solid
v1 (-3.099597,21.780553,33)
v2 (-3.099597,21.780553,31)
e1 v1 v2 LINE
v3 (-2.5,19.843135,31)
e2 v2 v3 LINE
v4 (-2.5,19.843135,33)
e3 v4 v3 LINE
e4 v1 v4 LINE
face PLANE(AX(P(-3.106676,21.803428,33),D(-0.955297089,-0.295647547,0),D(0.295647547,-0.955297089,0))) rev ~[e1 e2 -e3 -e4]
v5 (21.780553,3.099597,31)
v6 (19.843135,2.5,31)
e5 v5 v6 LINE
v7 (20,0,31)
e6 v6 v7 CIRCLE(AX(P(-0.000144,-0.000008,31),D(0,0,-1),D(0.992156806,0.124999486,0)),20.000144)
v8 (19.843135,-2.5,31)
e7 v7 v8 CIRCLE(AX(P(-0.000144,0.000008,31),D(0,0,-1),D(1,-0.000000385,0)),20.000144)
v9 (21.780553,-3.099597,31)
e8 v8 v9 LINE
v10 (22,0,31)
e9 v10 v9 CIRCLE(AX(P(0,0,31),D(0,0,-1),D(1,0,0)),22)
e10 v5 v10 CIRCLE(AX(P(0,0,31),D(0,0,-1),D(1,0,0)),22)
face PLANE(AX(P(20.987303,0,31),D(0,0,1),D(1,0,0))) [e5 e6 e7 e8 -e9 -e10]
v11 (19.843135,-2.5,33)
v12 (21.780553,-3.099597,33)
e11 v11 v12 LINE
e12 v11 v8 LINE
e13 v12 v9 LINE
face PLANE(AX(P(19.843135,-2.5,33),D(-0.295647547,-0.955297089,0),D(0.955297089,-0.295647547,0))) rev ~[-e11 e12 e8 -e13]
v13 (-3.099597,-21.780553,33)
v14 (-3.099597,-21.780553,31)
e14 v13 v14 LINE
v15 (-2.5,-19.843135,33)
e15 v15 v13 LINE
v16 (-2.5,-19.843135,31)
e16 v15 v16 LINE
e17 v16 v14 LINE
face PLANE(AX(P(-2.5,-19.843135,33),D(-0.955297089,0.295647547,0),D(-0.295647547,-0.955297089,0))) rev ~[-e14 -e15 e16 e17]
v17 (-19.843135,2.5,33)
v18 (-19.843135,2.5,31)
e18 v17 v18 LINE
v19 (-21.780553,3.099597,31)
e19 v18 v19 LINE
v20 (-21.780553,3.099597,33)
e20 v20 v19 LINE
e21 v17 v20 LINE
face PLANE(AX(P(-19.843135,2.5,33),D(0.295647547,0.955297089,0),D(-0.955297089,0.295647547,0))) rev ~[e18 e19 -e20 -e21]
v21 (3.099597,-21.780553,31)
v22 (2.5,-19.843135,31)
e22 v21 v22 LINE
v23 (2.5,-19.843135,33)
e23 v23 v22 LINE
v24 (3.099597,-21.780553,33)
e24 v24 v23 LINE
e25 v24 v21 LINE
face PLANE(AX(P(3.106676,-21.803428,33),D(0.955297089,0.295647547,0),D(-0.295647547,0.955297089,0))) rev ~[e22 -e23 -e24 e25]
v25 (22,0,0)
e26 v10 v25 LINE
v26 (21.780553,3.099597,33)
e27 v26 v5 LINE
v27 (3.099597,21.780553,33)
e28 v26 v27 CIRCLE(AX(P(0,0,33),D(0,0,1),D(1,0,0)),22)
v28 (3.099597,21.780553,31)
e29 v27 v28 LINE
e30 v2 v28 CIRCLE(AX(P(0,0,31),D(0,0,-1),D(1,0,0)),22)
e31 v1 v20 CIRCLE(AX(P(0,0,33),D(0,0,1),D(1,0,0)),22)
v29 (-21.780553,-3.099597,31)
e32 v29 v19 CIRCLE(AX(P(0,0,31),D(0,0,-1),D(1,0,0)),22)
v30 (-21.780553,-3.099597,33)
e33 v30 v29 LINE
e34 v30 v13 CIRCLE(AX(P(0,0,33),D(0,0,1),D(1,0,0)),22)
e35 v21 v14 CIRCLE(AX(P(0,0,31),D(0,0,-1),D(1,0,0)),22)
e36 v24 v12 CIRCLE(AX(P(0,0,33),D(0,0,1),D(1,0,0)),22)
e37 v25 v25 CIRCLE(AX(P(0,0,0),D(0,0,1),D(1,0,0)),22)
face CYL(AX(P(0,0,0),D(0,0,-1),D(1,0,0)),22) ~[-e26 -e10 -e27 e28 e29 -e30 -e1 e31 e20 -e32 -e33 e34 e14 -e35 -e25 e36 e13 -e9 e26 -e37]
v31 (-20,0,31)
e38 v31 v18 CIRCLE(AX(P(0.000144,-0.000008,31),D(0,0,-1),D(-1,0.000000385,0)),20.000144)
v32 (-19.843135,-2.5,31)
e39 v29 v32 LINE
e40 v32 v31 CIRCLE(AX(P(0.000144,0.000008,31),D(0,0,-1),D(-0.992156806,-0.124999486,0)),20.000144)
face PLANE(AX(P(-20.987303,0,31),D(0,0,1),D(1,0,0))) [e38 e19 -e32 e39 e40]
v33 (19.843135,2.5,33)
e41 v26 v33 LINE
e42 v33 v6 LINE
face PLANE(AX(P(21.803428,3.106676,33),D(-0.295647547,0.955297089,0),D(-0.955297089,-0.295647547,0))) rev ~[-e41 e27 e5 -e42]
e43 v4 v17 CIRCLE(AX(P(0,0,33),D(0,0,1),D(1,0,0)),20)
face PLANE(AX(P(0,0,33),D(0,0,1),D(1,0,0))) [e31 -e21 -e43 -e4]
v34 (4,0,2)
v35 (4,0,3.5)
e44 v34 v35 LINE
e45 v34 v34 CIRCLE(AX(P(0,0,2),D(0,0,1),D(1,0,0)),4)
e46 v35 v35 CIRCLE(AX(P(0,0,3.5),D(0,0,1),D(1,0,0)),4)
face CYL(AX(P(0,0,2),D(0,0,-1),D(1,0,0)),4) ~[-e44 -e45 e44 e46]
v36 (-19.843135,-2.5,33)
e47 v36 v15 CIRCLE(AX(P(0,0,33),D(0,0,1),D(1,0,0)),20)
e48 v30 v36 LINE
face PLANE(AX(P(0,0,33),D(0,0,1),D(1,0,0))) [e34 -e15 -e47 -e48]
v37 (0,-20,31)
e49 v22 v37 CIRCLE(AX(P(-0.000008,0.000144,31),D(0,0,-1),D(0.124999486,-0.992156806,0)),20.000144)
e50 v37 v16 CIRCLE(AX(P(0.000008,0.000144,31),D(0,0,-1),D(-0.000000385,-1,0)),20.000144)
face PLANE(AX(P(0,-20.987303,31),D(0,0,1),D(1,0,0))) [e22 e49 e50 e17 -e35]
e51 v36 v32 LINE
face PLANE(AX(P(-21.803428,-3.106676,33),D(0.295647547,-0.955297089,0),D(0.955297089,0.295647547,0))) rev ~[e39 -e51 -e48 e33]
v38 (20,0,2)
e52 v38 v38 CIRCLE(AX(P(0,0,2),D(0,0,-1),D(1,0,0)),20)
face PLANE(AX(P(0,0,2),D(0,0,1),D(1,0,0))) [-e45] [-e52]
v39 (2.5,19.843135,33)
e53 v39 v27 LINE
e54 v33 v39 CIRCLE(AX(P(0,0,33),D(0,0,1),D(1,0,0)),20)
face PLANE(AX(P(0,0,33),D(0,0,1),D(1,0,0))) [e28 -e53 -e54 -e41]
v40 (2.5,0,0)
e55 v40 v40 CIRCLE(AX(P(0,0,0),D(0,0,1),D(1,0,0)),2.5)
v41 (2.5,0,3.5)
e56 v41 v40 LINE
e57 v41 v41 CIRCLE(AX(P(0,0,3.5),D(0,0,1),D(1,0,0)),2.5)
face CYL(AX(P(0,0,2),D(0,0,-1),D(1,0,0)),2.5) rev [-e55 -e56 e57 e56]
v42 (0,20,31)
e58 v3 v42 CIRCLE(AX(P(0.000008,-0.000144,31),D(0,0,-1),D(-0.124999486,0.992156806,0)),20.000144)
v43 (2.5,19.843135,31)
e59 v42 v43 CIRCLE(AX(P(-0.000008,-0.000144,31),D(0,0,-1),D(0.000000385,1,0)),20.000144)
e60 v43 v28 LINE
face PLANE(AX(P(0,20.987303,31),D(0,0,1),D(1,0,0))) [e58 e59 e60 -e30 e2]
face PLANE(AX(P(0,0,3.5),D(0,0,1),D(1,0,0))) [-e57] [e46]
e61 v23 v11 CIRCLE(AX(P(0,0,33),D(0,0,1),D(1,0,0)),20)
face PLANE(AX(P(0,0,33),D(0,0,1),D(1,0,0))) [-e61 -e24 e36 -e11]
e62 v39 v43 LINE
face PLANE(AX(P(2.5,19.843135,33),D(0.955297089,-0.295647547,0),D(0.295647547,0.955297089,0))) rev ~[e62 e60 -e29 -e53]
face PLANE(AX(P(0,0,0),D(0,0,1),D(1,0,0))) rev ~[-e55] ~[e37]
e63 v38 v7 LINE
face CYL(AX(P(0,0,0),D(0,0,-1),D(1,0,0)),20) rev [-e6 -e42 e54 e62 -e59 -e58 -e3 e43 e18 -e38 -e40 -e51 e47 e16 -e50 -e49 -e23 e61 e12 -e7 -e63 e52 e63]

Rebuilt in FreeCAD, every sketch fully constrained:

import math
import FreeCAD as App
import Part
import Sketcher

doc = App.newDocument("Part")
body = doc.addObject("PartDesign::Body", "Body")

# Sketch on XY plane
sketch1 = body.newObject("Sketcher::SketchObject", "Sketch")
sketch1.AttachmentSupport = (doc.getObject("XY_Plane"), [""])
sketch1.MapMode = "FlatFace"
sketch1.addGeometry([
    Part.Circle(App.Vector(0, 0, 0), App.Vector(0, 0, 1), 22),
    Part.Circle(App.Vector(0, 0, 0), App.Vector(0, 0, 1), 20),
], False)
sketch1.addConstraint([
    Sketcher.Constraint("Coincident", 0, 3, -1, 1),
    Sketcher.Constraint("Coincident", 1, 3, -1, 1),
    Sketcher.Constraint("Diameter", 0, 44.0),
    Sketcher.Constraint("Diameter", 1, 40.0),
])
pad1 = body.newObject("PartDesign::Pad", "Pad")
pad1.Profile = sketch1
pad1.Length = 33

# Sketch on XY plane
sketch2 = body.newObject("Sketcher::SketchObject", "Sketch001")
sketch2.AttachmentSupport = (doc.getObject("XY_Plane"), [""])
sketch2.MapMode = "FlatFace"
sketch2.addGeometry([
    Part.Circle(App.Vector(0, 0, 0), App.Vector(0, 0, 1), 22),
    Part.Circle(App.Vector(0, 0, 0), App.Vector(0, 0, 1), 2.5),
], False)
sketch2.addConstraint([
    Sketcher.Constraint("Coincident", 0, 3, -1, 1),
    Sketcher.Constraint("Coincident", 1, 3, -1, 1),
    Sketcher.Constraint("Diameter", 0, 44.0),
    Sketcher.Constraint("Diameter", 1, 5.0),
])
pad2 = body.newObject("PartDesign::Pad", "Pad001")
pad2.Profile = sketch2
pad2.Length = 2

# Sketch on XY plane
sketch3 = body.newObject("Sketcher::SketchObject", "Sketch002")
sketch3.AttachmentSupport = (doc.getObject("XY_Plane"), [""])
sketch3.MapMode = "FlatFace"
sketch3.AttachmentOffset = App.Placement(App.Vector(0, 0, 33), App.Rotation())
sketch3.addGeometry([
    Part.LineSegment(App.Vector(-3.106676, 21.803428, 0), App.Vector(-2.5, 19.843135, 0)),  # 0
    Part.ArcOfCircle(Part.Circle(App.Vector(0.000008, -0.000144, 0), App.Vector(0, 0, 1), 20.000144), math.radians(90.000022), math.radians(97.180726)),  # 1
    Part.ArcOfCircle(Part.Circle(App.Vector(-0.000008, -0.000144, 0), App.Vector(0, 0, 1), 20.000144), math.radians(82.819274), math.radians(89.999978)),  # 2
    Part.LineSegment(App.Vector(2.5, 19.843135, 0), App.Vector(3.106676, 21.803428, 0)),  # 3
    Part.ArcOfCircle(Part.Circle(App.Vector(0, 0.00007, 0), App.Vector(0, 0, 1), 22.023575), math.radians(81.890731), math.radians(98.109269)),  # 4
    Part.LineSegment(App.Vector(-21.803428, -3.106676, 0), App.Vector(-19.843135, -2.5, 0)),  # 5
    Part.ArcOfCircle(Part.Circle(App.Vector(0.000144, 0.000008, 0), App.Vector(0, 0, 1), 20.000144), math.radians(-179.999978), math.radians(-172.819274)),  # 6
    Part.ArcOfCircle(Part.Circle(App.Vector(0.000144, -0.000008, 0), App.Vector(0, 0, 1), 20.000144), math.radians(172.819274), math.radians(179.999978)),  # 7
    Part.LineSegment(App.Vector(-19.843135, 2.5, 0), App.Vector(-21.803428, 3.106676, 0)),  # 8
    Part.ArcOfCircle(Part.Circle(App.Vector(-0.00007, 0, 0), App.Vector(0, 0, 1), 22.023575), math.radians(171.890731), math.radians(188.109269)),  # 9
    Part.LineSegment(App.Vector(3.106676, -21.803428, 0), App.Vector(2.5, -19.843135, 0)),  # 10
    Part.ArcOfCircle(Part.Circle(App.Vector(-0.000008, 0.000144, 0), App.Vector(0, 0, 1), 20.000144), math.radians(-89.999978), math.radians(-82.819274)),  # 11
    Part.ArcOfCircle(Part.Circle(App.Vector(0.000008, 0.000144, 0), App.Vector(0, 0, 1), 20.000144), math.radians(-97.180726), math.radians(-90.000022)),  # 12
    Part.LineSegment(App.Vector(-2.5, -19.843135, 0), App.Vector(-3.106676, -21.803428, 0)),  # 13
    Part.ArcOfCircle(Part.Circle(App.Vector(0, -0.00007, 0), App.Vector(0, 0, 1), 22.023575), math.radians(-98.109269), math.radians(-81.890731)),  # 14
    Part.LineSegment(App.Vector(21.803428, 3.106676, 0), App.Vector(19.843135, 2.5, 0)),  # 15
    Part.ArcOfCircle(Part.Circle(App.Vector(-0.000144, -0.000008, 0), App.Vector(0, 0, 1), 20.000144), math.radians(0.000022), math.radians(7.180726)),  # 16
    Part.ArcOfCircle(Part.Circle(App.Vector(-0.000144, 0.000008, 0), App.Vector(0, 0, 1), 20.000144), math.radians(-7.180726), math.radians(-0.000022)),  # 17
    Part.LineSegment(App.Vector(19.843135, -2.5, 0), App.Vector(21.803428, -3.106676, 0)),  # 18
    Part.ArcOfCircle(Part.Circle(App.Vector(0.00007, 0, 0), App.Vector(0, 0, 1), 22.023575), math.radians(-8.109269), math.radians(8.109269)),  # 19
], False)
sketch3.addConstraint([
    Sketcher.Constraint("Coincident", 0, 2, 1, 2),
    Sketcher.Constraint("Tangent", 1, 1, 2, 2),
    Sketcher.Constraint("Coincident", 2, 1, 3, 1),
    Sketcher.Constraint("Coincident", 3, 2, 4, 1),
    Sketcher.Constraint("Coincident", 4, 2, 0, 1),
    Sketcher.Constraint("Coincident", 5, 2, 6, 2),
    Sketcher.Constraint("Tangent", 6, 1, 7, 2),
    Sketcher.Constraint("Coincident", 7, 1, 8, 1),
    Sketcher.Constraint("Coincident", 8, 2, 9, 1),
    Sketcher.Constraint("Coincident", 9, 2, 5, 1),
    Sketcher.Constraint("Coincident", 10, 2, 11, 2),
    Sketcher.Constraint("Tangent", 11, 1, 12, 2),
    Sketcher.Constraint("Coincident", 12, 1, 13, 1),
    Sketcher.Constraint("Coincident", 13, 2, 14, 1),
    Sketcher.Constraint("Coincident", 14, 2, 10, 1),
    Sketcher.Constraint("Coincident", 15, 2, 16, 2),
    Sketcher.Constraint("Tangent", 16, 1, 17, 2),
    Sketcher.Constraint("Coincident", 17, 1, 18, 1),
    Sketcher.Constraint("Coincident", 18, 2, 19, 1),
    Sketcher.Constraint("Coincident", 19, 2, 15, 1),
    Sketcher.Constraint("Equal", 1, 2),
    Sketcher.Constraint("Equal", 2, 6),
    Sketcher.Constraint("Equal", 6, 7),
    Sketcher.Constraint("Equal", 4, 9),
    Sketcher.Constraint("Equal", 7, 11),
    Sketcher.Constraint("Equal", 11, 12),
    Sketcher.Constraint("Equal", 9, 14),
    Sketcher.Constraint("Equal", 12, 16),
    Sketcher.Constraint("Equal", 16, 17),
    Sketcher.Constraint("Equal", 14, 19),
    Sketcher.Constraint("Symmetric", 1, 3, 11, 3, -1, 1),
    Sketcher.Constraint("Symmetric", 4, 3, 14, 3, -1, 1),
    Sketcher.Constraint("Symmetric", 6, 3, 16, 3, -1, 1),
    Sketcher.Constraint("Symmetric", 9, 3, 19, 3, -1, 1),
    Sketcher.Constraint("Symmetric", 0, 2, 2, 1, -2),
    Sketcher.Constraint("Symmetric", 3, 2, 4, 2, -2),
    Sketcher.Constraint("Symmetric", 7, 1, 15, 2, -2),
    Sketcher.Constraint("Symmetric", 9, 2, 18, 2, -2),
    Sketcher.Constraint("PointOnObject", 1, 1, -2),
    Sketcher.Constraint("PointOnObject", 6, 1, -1),
    Sketcher.Constraint("PointOnObject", 11, 1, -2),
    Sketcher.Constraint("PointOnObject", 16, 1, -1),
    Sketcher.Constraint("Perpendicular", 0, 5),
    Sketcher.Constraint("Perpendicular", 3, 8),
    Sketcher.Constraint("Perpendicular", 5, 10),
    Sketcher.Constraint("Perpendicular", 8, 13),
    Sketcher.Constraint("Perpendicular", 10, 15),
    Sketcher.Constraint("Perpendicular", 13, 18),
    Sketcher.Constraint("Horizontal", 10, 2, 12, 1),
    Sketcher.Constraint("Vertical", 5, 2, 7, 1),
    Sketcher.Constraint("Vertical", 2, 1, 10, 2),
    Sketcher.Constraint("Equal", 3, 5),
    Sketcher.Constraint("DistanceY", -1, 1, 1, 1, 20.0),
    Sketcher.Constraint("DistanceX", 6, 1, -1, 1, 20.0),
    Sketcher.Constraint("DistanceX", 0, 2, 2, 1, 5.0),
    Sketcher.Constraint("DistanceY", 5, 2, 7, 1, 5.0),
    Sketcher.Constraint("Radius", 1, 20.000144),
    Sketcher.Constraint("Radius", 4, 22.023575),
    Sketcher.Constraint("DistanceY", -1, 1, 3, 2, 21.803428),
    Sketcher.Constraint("DistanceY", 14, 3, 4, 3, 0.00014),
])
pocket1 = body.newObject("PartDesign::Pocket", "Pocket")
pocket1.Profile = sketch3
pocket1.Length = 2

# Sketch on XY plane
sketch4 = body.newObject("Sketcher::SketchObject", "Sketch003")
sketch4.AttachmentSupport = (doc.getObject("XY_Plane"), [""])
sketch4.MapMode = "FlatFace"
sketch4.AttachmentOffset = App.Placement(App.Vector(0, 0, 2), App.Rotation())
sketch4.addGeometry([
    Part.Circle(App.Vector(0, 0, 0), App.Vector(0, 0, 1), 4),
    Part.Circle(App.Vector(0, 0, 0), App.Vector(0, 0, 1), 2.5),
], False)
sketch4.addConstraint([
    Sketcher.Constraint("Coincident", 0, 3, -1, 1),
    Sketcher.Constraint("Coincident", 1, 3, -1, 1),
    Sketcher.Constraint("Diameter", 0, 8.0),
    Sketcher.Constraint("Diameter", 1, 5.0),
])
pad3 = body.newObject("PartDesign::Pad", "Pad002")
pad3.Profile = sketch4
pad3.Length = 1.5

doc.recompute()
